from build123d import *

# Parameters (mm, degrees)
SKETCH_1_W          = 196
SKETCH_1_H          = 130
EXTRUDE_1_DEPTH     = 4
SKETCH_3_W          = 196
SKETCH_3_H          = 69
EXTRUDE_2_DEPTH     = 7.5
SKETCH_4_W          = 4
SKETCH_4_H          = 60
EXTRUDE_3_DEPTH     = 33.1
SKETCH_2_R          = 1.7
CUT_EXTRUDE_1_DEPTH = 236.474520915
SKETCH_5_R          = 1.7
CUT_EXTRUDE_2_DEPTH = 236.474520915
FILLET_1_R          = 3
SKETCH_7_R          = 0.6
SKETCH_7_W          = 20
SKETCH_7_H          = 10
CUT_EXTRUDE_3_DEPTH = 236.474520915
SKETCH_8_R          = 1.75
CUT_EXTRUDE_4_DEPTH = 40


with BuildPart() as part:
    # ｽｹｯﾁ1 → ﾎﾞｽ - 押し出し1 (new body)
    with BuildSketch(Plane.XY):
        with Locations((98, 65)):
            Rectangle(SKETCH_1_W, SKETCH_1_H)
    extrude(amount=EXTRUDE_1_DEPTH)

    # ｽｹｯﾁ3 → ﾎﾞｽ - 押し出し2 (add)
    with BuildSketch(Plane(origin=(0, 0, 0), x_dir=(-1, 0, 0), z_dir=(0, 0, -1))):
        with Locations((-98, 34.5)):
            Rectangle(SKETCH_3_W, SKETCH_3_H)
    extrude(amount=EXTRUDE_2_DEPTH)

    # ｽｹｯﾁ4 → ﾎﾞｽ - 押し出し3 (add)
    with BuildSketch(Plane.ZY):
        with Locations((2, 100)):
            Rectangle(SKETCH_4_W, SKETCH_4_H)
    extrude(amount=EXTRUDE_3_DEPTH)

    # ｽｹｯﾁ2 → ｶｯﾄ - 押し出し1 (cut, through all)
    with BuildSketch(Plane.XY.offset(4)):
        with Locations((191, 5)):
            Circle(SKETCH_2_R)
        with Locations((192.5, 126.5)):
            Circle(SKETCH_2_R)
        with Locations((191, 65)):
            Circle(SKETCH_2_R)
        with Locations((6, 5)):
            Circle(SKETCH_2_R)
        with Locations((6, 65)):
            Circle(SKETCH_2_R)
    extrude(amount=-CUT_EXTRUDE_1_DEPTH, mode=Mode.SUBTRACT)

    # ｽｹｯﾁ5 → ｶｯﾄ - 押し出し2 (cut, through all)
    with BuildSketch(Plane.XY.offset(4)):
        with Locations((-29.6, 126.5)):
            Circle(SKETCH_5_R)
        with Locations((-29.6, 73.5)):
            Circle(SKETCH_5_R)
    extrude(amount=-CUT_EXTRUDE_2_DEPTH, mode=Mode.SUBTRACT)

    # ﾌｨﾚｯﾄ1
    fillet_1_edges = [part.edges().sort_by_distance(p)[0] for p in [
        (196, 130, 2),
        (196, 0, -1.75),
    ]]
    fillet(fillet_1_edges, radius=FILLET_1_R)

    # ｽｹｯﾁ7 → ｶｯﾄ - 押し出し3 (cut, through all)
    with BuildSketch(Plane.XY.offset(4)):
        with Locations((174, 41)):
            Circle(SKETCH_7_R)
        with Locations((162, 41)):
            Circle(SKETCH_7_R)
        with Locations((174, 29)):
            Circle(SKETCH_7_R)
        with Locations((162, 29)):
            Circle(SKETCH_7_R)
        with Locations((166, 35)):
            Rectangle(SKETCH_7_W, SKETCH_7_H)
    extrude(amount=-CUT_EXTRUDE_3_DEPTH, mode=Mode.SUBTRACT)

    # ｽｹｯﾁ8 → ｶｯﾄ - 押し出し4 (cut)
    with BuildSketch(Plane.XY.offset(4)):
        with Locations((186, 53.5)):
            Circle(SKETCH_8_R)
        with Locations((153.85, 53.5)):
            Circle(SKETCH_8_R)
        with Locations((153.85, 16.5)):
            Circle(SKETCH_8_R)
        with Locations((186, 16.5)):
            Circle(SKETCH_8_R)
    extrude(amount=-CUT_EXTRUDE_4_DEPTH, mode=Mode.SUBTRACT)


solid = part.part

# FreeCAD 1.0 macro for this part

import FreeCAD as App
import Part
import Sketcher

V = App.Vector


def edges_at(feature, points):
    """Names of the edges that pass closest to the given points."""
    edges = feature.Shape.Edges
    near = lambda p: min(range(len(edges)), key=lambda i: edges[i].distToShape(Part.Vertex(*p))[0])
    return sorted({f"Edge{near(p) + 1}" for p in points})

doc = App.newDocument("Part")
body = doc.addObject("PartDesign::Body", "Body")

# Sketch on XY plane
sketch1 = doc.addObject("Sketcher::SketchObject", "Sketch")
body.addObject(sketch1)
sketch1.AttachmentSupport = (doc.XY_Plane, [""])
sketch1.MapMode = "FlatFace"
sketch1.addGeometry(Part.LineSegment(V(0, 130, 0), V(0, 0, 0)), False)
sketch1.addGeometry(Part.LineSegment(V(0, 0, 0), V(196, 0, 0)), False)
sketch1.addGeometry(Part.LineSegment(V(196, 0, 0), V(196, 130, 0)), False)
sketch1.addGeometry(Part.LineSegment(V(196, 130, 0), V(0, 130, 0)), False)
sketch1.addConstraint(Sketcher.Constraint("Coincident", 0, 2, 1, 1))
sketch1.addConstraint(Sketcher.Constraint("Coincident", 1, 2, 2, 1))
sketch1.addConstraint(Sketcher.Constraint("Coincident", 2, 2, 3, 1))
sketch1.addConstraint(Sketcher.Constraint("Coincident", 3, 2, 0, 1))
sketch1.addConstraint(Sketcher.Constraint("Vertical", 0))
sketch1.addConstraint(Sketcher.Constraint("Horizontal", 1))
sketch1.addConstraint(Sketcher.Constraint("Vertical", 2))
sketch1.addConstraint(Sketcher.Constraint("Horizontal", 3))
sketch1.addConstraint(Sketcher.Constraint("Coincident", 0, 2, -1, 1))
sketch1.addConstraint(Sketcher.Constraint("DistanceX", 1, 1, 1, 2, 196.0))
sketch1.addConstraint(Sketcher.Constraint("DistanceY", 0, 2, 0, 1, 130.0))
pad1 = doc.addObject("PartDesign::Pad", "Pad")
body.addObject(pad1)
pad1.Profile = sketch1
pad1.Length = 4

# Sketch on XY plane
sketch2 = doc.addObject("Sketcher::SketchObject", "Sketch001")
body.addObject(sketch2)
sketch2.AttachmentSupport = (doc.XY_Plane, [""])
sketch2.MapMode = "FlatFace"
sketch2.addGeometry(Part.LineSegment(V(196, 69, 0), V(196, 0, 0)), False)
sketch2.addGeometry(Part.LineSegment(V(196, 0, 0), V(0, 0, 0)), False)
sketch2.addGeometry(Part.LineSegment(V(0, 0, 0), V(0, 69, 0)), False)
sketch2.addGeometry(Part.LineSegment(V(0, 69, 0), V(196, 69, 0)), False)
sketch2.addConstraint(Sketcher.Constraint("Coincident", 0, 2, 1, 1))
sketch2.addConstraint(Sketcher.Constraint("Coincident", 1, 2, 2, 1))
sketch2.addConstraint(Sketcher.Constraint("Coincident", 2, 2, 3, 1))
sketch2.addConstraint(Sketcher.Constraint("Coincident", 3, 2, 0, 1))
sketch2.addConstraint(Sketcher.Constraint("Vertical", 0))
sketch2.addConstraint(Sketcher.Constraint("Horizontal", 1))
sketch2.addConstraint(Sketcher.Constraint("Vertical", 2))
sketch2.addConstraint(Sketcher.Constraint("Horizontal", 3))
sketch2.addConstraint(Sketcher.Constraint("Coincident", 1, 2, -1, 1))
sketch2.addConstraint(Sketcher.Constraint("DistanceX", 1, 2, 1, 1, 196.0))
sketch2.addConstraint(Sketcher.Constraint("DistanceY", 0, 2, 0, 1, 69.0))
pad2 = doc.addObject("PartDesign::Pad", "Pad001")
body.addObject(pad2)
pad2.Profile = sketch2
pad2.Length = 7.5
pad2.Reversed = True

# Sketch on YZ plane
sketch3 = doc.addObject("Sketcher::SketchObject", "Sketch002")
body.addObject(sketch3)
sketch3.AttachmentSupport = (doc.YZ_Plane, [""])
sketch3.MapMode = "FlatFace"
sketch3.addGeometry(Part.LineSegment(V(130, 0, 0), V(70, 0, 0)), False)
sketch3.addGeometry(Part.LineSegment(V(70, 0, 0), V(70, 4, 0)), False)
sketch3.addGeometry(Part.LineSegment(V(70, 4, 0), V(130, 4, 0)), False)
sketch3.addGeometry(Part.LineSegment(V(130, 4, 0), V(130, 0, 0)), False)
sketch3.addConstraint(Sketcher.Constraint("Coincident", 0, 2, 1, 1))
sketch3.addConstraint(Sketcher.Constraint("Coincident", 1, 2, 2, 1))
sketch3.addConstraint(Sketcher.Constraint("Coincident", 2, 2, 3, 1))
sketch3.addConstraint(Sketcher.Constraint("Coincident", 3, 2, 0, 1))
sketch3.addConstraint(Sketcher.Constraint("Horizontal", 0))
sketch3.addConstraint(Sketcher.Constraint("Vertical", 1))
sketch3.addConstraint(Sketcher.Constraint("Horizontal", 2))
sketch3.addConstraint(Sketcher.Constraint("Vertical", 3))
sketch3.addConstraint(Sketcher.Constraint("PointOnObject", 0, 2, -1))
sketch3.addConstraint(Sketcher.Constraint("DistanceX", 0, 2, 0, 1, 60.0))
sketch3.addConstraint(Sketcher.Constraint("DistanceY", 1, 1, 1, 2, 4.0))
sketch3.addConstraint(Sketcher.Constraint("DistanceX", -1, 1, 0, 2, 70.0))
pad3 = doc.addObject("PartDesign::Pad", "Pad002")
body.addObject(pad3)
pad3.Profile = sketch3
pad3.Length = 33.1
pad3.Reversed = True

# Sketch on XY plane
sketch4 = doc.addObject("Sketcher::SketchObject", "Sketch003")
body.addObject(sketch4)
sketch4.AttachmentSupport = (doc.XY_Plane, [""])
sketch4.MapMode = "FlatFace"
sketch4.AttachmentOffset = App.Placement(V(0, 0, 4), App.Rotation())
sketch4.addGeometry(Part.Circle(V(191, 5, 0), V(0, 0, 1), 1.7), False)
sketch4.addGeometry(Part.Circle(V(192.5, 126.5, 0), V(0, 0, 1), 1.7), False)
sketch4.addGeometry(Part.Circle(V(191, 65, 0), V(0, 0, 1), 1.7), False)
sketch4.addGeometry(Part.Circle(V(6, 5, 0), V(0, 0, 1), 1.7), False)
sketch4.addGeometry(Part.Circle(V(6, 65, 0), V(0, 0, 1), 1.7), False)
sketch4.addConstraint(Sketcher.Constraint("Equal", 0, 1))
sketch4.addConstraint(Sketcher.Constraint("Equal", 1, 2))
sketch4.addConstraint(Sketcher.Constraint("Equal", 2, 3))
sketch4.addConstraint(Sketcher.Constraint("Equal", 3, 4))
sketch4.addConstraint(Sketcher.Constraint("Horizontal", 0, 3, 3, 3))
sketch4.addConstraint(Sketcher.Constraint("Horizontal", 2, 3, 4, 3))
sketch4.addConstraint(Sketcher.Constraint("Vertical", 0, 3, 2, 3))
sketch4.addConstraint(Sketcher.Constraint("Vertical", 3, 3, 4, 3))
sketch4.addConstraint(Sketcher.Constraint("Diameter", 0, 3.4))
sketch4.addConstraint(Sketcher.Constraint("DistanceX", -1, 1, 0, 3, 191.0))
sketch4.addConstraint(Sketcher.Constraint("DistanceY", -1, 1, 0, 3, 5.0))
sketch4.addConstraint(Sketcher.Constraint("DistanceY", -1, 1, 2, 3, 65.0))
sketch4.addConstraint(Sketcher.Constraint("DistanceX", -1, 1, 3, 3, 6.0))
sketch4.addConstraint(Sketcher.Constraint("DistanceX", -1, 1, 1, 3, 192.5))
sketch4.addConstraint(Sketcher.Constraint("DistanceY", -1, 1, 1, 3, 126.5))
pocket1 = doc.addObject("PartDesign::Pocket", "Pocket")
body.addObject(pocket1)
pocket1.Profile = sketch4
pocket1.Type = "ThroughAll"

# Sketch on XY plane
sketch5 = doc.addObject("Sketcher::SketchObject", "Sketch004")
body.addObject(sketch5)
sketch5.AttachmentSupport = (doc.XY_Plane, [""])
sketch5.MapMode = "FlatFace"
sketch5.AttachmentOffset = App.Placement(V(0, 0, 4), App.Rotation())
sketch5.addGeometry(Part.Circle(V(-29.6, 126.5, 0), V(0, 0, 1), 1.7), False)
sketch5.addGeometry(Part.Circle(V(-29.6, 73.5, 0), V(0, 0, 1), 1.7), False)
sketch5.addConstraint(Sketcher.Constraint("Equal", 0, 1))
sketch5.addConstraint(Sketcher.Constraint("Vertical", 0, 3, 1, 3))
sketch5.addConstraint(Sketcher.Constraint("Diameter", 0, 3.4))
sketch5.addConstraint(Sketcher.Constraint("DistanceY", 1, 3, 0, 3, 53.0))
sketch5.addConstraint(Sketcher.Constraint("DistanceX", 0, 3, -1, 1, 29.6))
sketch5.addConstraint(Sketcher.Constraint("DistanceY", -1, 1, 0, 3, 126.5))
pocket2 = doc.addObject("PartDesign::Pocket", "Pocket001")
body.addObject(pocket2)
pocket2.Profile = sketch5
pocket2.Type = "ThroughAll"
doc.recompute()

fillet = doc.addObject("PartDesign::Fillet", "Fillet")
body.addObject(fillet)
fillet.Base = (pocket2, edges_at(pocket2, [(196, 130, 2), (196, 0, -1.75)]))
fillet.Radius = 3

# Sketch on XY plane
sketch6 = doc.addObject("Sketcher::SketchObject", "Sketch005")
body.addObject(sketch6)
sketch6.AttachmentSupport = (doc.XY_Plane, [""])
sketch6.MapMode = "FlatFace"
sketch6.AttachmentOffset = App.Placement(V(0, 0, 4), App.Rotation())
sketch6.addGeometry(Part.Circle(V(174, 41, 0), V(0, 0, 1), 0.6), False)
sketch6.addGeometry(Part.Circle(V(162, 41, 0), V(0, 0, 1), 0.6), False)
sketch6.addGeometry(Part.Circle(V(174, 29, 0), V(0, 0, 1), 0.6), False)
sketch6.addGeometry(Part.Circle(V(162, 29, 0), V(0, 0, 1), 0.6), False)
sketch6.addGeometry(Part.LineSegment(V(156, 40, 0), V(156, 30, 0)), False)
sketch6.addGeometry(Part.LineSegment(V(156, 30, 0), V(176, 30, 0)), False)
sketch6.addGeometry(Part.LineSegment(V(176, 30, 0), V(176, 40, 0)), False)
sketch6.addGeometry(Part.LineSegment(V(176, 40, 0), V(156, 40, 0)), False)
sketch6.addConstraint(Sketcher.Constraint("Coincident", 4, 2, 5, 1))
sketch6.addConstraint(Sketcher.Constraint("Coincident", 5, 2, 6, 1))
sketch6.addConstraint(Sketcher.Constraint("Coincident", 6, 2, 7, 1))
sketch6.addConstraint(Sketcher.Constraint("Coincident", 7, 2, 4, 1))
sketch6.addConstraint(Sketcher.Constraint("Vertical", 4))
sketch6.addConstraint(Sketcher.Constraint("Horizontal", 5))
sketch6.addConstraint(Sketcher.Constraint("Vertical", 6))
sketch6.addConstraint(Sketcher.Constraint("Horizontal", 7))
sketch6.addConstraint(Sketcher.Constraint("Equal", 0, 1))
sketch6.addConstraint(Sketcher.Constraint("Equal", 1, 2))
sketch6.addConstraint(Sketcher.Constraint("Equal", 2, 3))
sketch6.addConstraint(Sketcher.Constraint("Horizontal", 0, 3, 1, 3))
sketch6.addConstraint(Sketcher.Constraint("Horizontal", 2, 3, 3, 3))
sketch6.addConstraint(Sketcher.Constraint("Vertical", 0, 3, 2, 3))
sketch6.addConstraint(Sketcher.Constraint("Vertical", 1, 3, 3, 3))
sketch6.addConstraint(Sketcher.Constraint("Diameter", 0, 1.2))
sketch6.addConstraint(Sketcher.Constraint("DistanceX", 5, 1, 5, 2, 20.0))
sketch6.addConstraint(Sketcher.Constraint("DistanceY", 4, 2, 4, 1, 10.0))
sketch6.addConstraint(Sketcher.Constraint("DistanceX", -1, 1, 0, 3, 174.0))
sketch6.addConstraint(Sketcher.Constraint("DistanceY", -1, 1, 0, 3, 41.0))
sketch6.addConstraint(Sketcher.Constraint("DistanceX", -1, 1, 1, 3, 162.0))
sketch6.addConstraint(Sketcher.Constraint("DistanceY", -1, 1, 2, 3, 29.0))
sketch6.addConstraint(Sketcher.Constraint("DistanceX", -1, 1, 4, 2, 156.0))
sketch6.addConstraint(Sketcher.Constraint("DistanceY", -1, 1, 4, 2, 30.0))
pocket3 = doc.addObject("PartDesign::Pocket", "Pocket002")
body.addObject(pocket3)
pocket3.Profile = sketch6
pocket3.Type = "ThroughAll"

# Sketch on XY plane
sketch7 = doc.addObject("Sketcher::SketchObject", "Sketch006")
body.addObject(sketch7)
sketch7.AttachmentSupport = (doc.XY_Plane, [""])
sketch7.MapMode = "FlatFace"
sketch7.AttachmentOffset = App.Placement(V(0, 0, 4), App.Rotation())
sketch7.addGeometry(Part.Circle(V(186, 53.5, 0), V(0, 0, 1), 1.75), False)
sketch7.addGeometry(Part.Circle(V(153.85, 53.5, 0), V(0, 0, 1), 1.75), False)
sketch7.addGeometry(Part.Circle(V(153.85, 16.5, 0), V(0, 0, 1), 1.75), False)
sketch7.addGeometry(Part.Circle(V(186, 16.5, 0), V(0, 0, 1), 1.75), False)
sketch7.addConstraint(Sketcher.Constraint("Equal", 0, 1))
sketch7.addConstraint(Sketcher.Constraint("Equal", 1, 2))
sketch7.addConstraint(Sketcher.Constraint("Equal", 2, 3))
sketch7.addConstraint(Sketcher.Constraint("Horizontal", 0, 3, 1, 3))
sketch7.addConstraint(Sketcher.Constraint("Horizontal", 2, 3, 3, 3))
sketch7.addConstraint(Sketcher.Constraint("Vertical", 1, 3, 2, 3))
sketch7.addConstraint(Sketcher.Constraint("Vertical", 0, 3, 3, 3))
sketch7.addConstraint(Sketcher.Constraint("Diameter", 0, 3.5))
sketch7.addConstraint(Sketcher.Constraint("DistanceX", -1, 1, 0, 3, 186.0))
sketch7.addConstraint(Sketcher.Constraint("DistanceY", 2, 3, 1, 3, 37.0))
sketch7.addConstraint(Sketcher.Constraint("DistanceY", -1, 1, 0, 3, 53.5))
sketch7.addConstraint(Sketcher.Constraint("DistanceX", -1, 1, 1, 3, 153.85))
pocket4 = doc.addObject("PartDesign::Pocket", "Pocket003")
body.addObject(pocket4)
pocket4.Profile = sketch7
pocket4.Length = 40

doc.recompute()
